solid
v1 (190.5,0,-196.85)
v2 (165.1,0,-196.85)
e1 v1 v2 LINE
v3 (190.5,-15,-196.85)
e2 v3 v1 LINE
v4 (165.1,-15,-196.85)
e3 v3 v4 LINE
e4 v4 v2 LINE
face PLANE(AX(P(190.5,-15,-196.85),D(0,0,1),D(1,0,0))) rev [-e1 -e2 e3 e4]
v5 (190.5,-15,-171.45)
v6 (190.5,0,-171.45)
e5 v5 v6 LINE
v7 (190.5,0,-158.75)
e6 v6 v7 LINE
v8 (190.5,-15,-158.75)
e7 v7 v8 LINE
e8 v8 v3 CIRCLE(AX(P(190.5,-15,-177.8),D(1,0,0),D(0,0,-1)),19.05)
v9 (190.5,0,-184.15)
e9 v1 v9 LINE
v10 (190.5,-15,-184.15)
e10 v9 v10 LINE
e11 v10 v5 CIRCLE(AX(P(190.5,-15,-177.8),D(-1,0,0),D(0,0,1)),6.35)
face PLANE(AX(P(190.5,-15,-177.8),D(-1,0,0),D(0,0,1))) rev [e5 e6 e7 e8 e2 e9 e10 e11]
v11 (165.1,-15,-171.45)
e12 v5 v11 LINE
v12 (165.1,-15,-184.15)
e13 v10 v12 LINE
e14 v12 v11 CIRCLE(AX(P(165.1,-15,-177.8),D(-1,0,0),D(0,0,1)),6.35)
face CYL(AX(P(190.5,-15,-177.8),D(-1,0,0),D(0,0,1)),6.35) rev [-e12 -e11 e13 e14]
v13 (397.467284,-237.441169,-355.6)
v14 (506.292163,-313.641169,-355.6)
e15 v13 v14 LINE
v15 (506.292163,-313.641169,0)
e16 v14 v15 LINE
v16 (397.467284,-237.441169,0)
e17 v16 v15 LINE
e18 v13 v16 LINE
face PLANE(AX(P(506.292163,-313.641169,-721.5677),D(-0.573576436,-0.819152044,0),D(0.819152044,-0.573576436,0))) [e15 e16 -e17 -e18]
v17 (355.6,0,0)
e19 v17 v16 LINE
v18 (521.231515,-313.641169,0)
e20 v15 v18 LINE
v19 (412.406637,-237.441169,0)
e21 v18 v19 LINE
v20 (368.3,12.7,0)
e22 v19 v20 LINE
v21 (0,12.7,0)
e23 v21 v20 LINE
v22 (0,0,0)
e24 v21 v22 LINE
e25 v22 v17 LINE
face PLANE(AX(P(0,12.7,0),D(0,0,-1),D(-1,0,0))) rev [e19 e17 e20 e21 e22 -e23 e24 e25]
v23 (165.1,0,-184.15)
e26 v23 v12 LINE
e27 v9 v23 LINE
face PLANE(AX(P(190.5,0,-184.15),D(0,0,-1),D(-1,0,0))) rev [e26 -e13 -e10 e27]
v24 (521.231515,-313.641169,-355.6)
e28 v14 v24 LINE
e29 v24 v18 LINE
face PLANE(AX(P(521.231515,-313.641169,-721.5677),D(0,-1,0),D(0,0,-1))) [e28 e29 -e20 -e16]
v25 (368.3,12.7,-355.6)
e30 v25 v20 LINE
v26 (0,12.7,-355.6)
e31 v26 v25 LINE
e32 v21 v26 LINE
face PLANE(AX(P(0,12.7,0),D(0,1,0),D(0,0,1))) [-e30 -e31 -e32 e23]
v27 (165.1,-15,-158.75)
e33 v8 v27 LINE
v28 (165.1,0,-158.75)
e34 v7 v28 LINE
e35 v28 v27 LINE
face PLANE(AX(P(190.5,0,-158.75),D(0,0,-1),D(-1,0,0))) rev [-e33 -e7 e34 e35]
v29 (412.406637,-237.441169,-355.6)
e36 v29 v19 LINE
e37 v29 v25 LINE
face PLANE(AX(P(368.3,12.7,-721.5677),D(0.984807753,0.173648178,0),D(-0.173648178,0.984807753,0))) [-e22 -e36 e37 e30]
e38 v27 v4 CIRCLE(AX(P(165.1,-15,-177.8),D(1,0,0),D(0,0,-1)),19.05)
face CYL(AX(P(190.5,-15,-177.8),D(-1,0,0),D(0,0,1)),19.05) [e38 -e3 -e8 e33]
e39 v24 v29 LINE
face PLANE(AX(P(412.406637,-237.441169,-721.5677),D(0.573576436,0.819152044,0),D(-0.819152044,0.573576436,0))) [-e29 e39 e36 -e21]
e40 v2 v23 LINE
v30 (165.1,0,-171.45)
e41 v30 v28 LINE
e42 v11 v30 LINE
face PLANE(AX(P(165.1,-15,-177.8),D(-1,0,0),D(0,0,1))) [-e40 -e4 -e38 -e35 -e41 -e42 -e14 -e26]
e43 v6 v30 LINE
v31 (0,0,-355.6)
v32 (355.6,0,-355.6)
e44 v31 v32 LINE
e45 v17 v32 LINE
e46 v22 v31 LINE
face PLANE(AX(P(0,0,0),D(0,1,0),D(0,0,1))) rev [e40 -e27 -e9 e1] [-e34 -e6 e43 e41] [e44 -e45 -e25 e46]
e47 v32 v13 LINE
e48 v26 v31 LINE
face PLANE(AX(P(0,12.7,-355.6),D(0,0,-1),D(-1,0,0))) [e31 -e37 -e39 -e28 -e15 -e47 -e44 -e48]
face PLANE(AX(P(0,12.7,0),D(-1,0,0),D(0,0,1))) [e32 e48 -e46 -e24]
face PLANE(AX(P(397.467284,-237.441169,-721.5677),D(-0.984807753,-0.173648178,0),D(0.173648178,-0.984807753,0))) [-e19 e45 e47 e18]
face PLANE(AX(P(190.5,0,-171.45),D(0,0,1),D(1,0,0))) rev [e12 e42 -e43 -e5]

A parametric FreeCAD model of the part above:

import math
import FreeCAD as App
import Part
import Sketcher
Q = App.Units.Quantity

doc = App.newDocument("Part")
body = doc.addObject("PartDesign::Body", "Body")

sketch1 = body.newObject("Sketcher::SketchObject", "Sketch")
sketch1.AttachmentSupport = (doc.getObject("XZ_Plane"), [""])
sketch1.MapMode = "FlatFace"
sketch1.addGeometry([
    Part.LineSegment(App.Vector(0, -356, 0), App.Vector(0, 0, 0)),
    Part.LineSegment(App.Vector(0, 0, 0), App.Vector(356, 0, 0)),
    Part.LineSegment(App.Vector(356, 0, 0), App.Vector(356, -356, 0)),
    Part.LineSegment(App.Vector(356, -356, 0), App.Vector(0, -356, 0)),
], False)
sketch1.addConstraint([
    Sketcher.Constraint("Coincident", 0, 2, 1, 1),
    Sketcher.Constraint("Coincident", 1, 2, 2, 1),
    Sketcher.Constraint("Coincident", 2, 2, 3, 1),
    Sketcher.Constraint("Coincident", 3, 2, 0, 1),
    Sketcher.Constraint("Vertical", 0),
    Sketcher.Constraint("Horizontal", 1),
    Sketcher.Constraint("Vertical", 2),
    Sketcher.Constraint("Horizontal", 3),
    Sketcher.Constraint("Coincident", 0, 2, -1, 1),
    Sketcher.Constraint("Equal", 3, 0),
    Sketcher.Constraint("DistanceX", 1, 1, 1, 2, Q("14 in")),
])
pad1 = body.newObject("PartDesign::Pad", "Pad")
pad1.Profile = sketch1
pad1.Length = Q("0.5 in")
pad1.Reversed = True

sketch2 = body.newObject("Sketcher::SketchObject", "Sketch001")
sketch2.AttachmentSupport = (doc.getObject("YZ_Plane"), [""])
sketch2.MapMode = "FlatFace"
sketch2.AttachmentOffset = App.Placement(App.Vector(0, 0, 7 * 25.4), App.Rotation())
sketch2.addGeometry([
    Part.LineSegment(App.Vector(0, -159, 0), App.Vector(-15, -159, 0)),
    Part.ArcOfCircle(Part.Circle(App.Vector(-15, -178, 0), App.Vector(0, 0, 1), 19), math.radians(90), math.radians(270)),
    Part.LineSegment(App.Vector(-15, -197, 0), App.Vector(0, -197, 0)),
    Part.LineSegment(App.Vector(0, -197, 0), App.Vector(0, -184, 0)),
    Part.LineSegment(App.Vector(0, -184, 0), App.Vector(-15, -184, 0)),
    Part.ArcOfCircle(Part.Circle(App.Vector(-15, -178, 0), App.Vector(0, 0, 1), 6), math.radians(90), math.radians(270)),
    Part.LineSegment(App.Vector(-15, -171, 0), App.Vector(0, -171, 0)),
    Part.LineSegment(App.Vector(0, -171, 0), App.Vector(0, -159, 0)),
], False)
sketch2.addConstraint([
    Sketcher.Constraint("Tangent", 0, 2, 1, 1),
    Sketcher.Constraint("Tangent", 1, 2, 2, 1),
    Sketcher.Constraint("Coincident", 2, 2, 3, 1),
    Sketcher.Constraint("Coincident", 3, 2, 4, 1),
    Sketcher.Constraint("Tangent", 4, 2, 5, 2),
    Sketcher.Constraint("Tangent", 5, 1, 6, 1),
    Sketcher.Constraint("Coincident", 6, 2, 7, 1),
    Sketcher.Constraint("Coincident", 7, 2, 0, 1),
    Sketcher.Constraint("Horizontal", 0),
    Sketcher.Constraint("Horizontal", 2),
    Sketcher.Constraint("Vertical", 3),
    Sketcher.Constraint("Horizontal", 4),
    Sketcher.Constraint("Horizontal", 6),
    Sketcher.Constraint("Vertical", 7),
    Sketcher.Constraint("Coincident", 5, 3, 1, 3),
    Sketcher.Constraint("PointOnObject", 2, 2, -2),
    Sketcher.Constraint("PointOnObject", 6, 2, -2),
    Sketcher.Constraint("Radius", 1, Q("0.75 in")),
    Sketcher.Constraint("Radius", 5, Q("0.25 in")),
    Sketcher.Constraint("DistanceY", 1, 3, -1, 1, Q("7 in")),
    Sketcher.Constraint("DistanceX", 0, 2, 0, 1, Q("15 mm")),
])
pad2 = body.newObject("PartDesign::Pad", "Pad001")
pad2.Profile = sketch2
pad2.Length = Q("1 in")
pad2.Midplane = True

sketch3 = body.newObject("Sketcher::SketchObject", "Sketch002")
sketch3.AttachmentSupport = (doc.getObject("XY_Plane"), [""])
sketch3.MapMode = "FlatFace"
sketch3.addGeometry([
    Part.LineSegment(App.Vector(412, -237, 0), App.Vector(368, 13, 0)),
    Part.LineSegment(App.Vector(368, 13, 0), App.Vector(356, 13, 0)),
    Part.LineSegment(App.Vector(356, 13, 0), App.Vector(356, 0, 0)),
    Part.LineSegment(App.Vector(356, 0, 0), App.Vector(397, -237, 0)),
    Part.LineSegment(App.Vector(397, -237, 0), App.Vector(506, -314, 0)),
    Part.LineSegment(App.Vector(506, -314, 0), App.Vector(521, -314, 0)),
    Part.LineSegment(App.Vector(521, -314, 0), App.Vector(412, -237, 0)),
], False)
sketch3.addConstraint([
    Sketcher.Constraint("Coincident", 0, 2, 1, 1),
    Sketcher.Constraint("Coincident", 1, 2, 2, 1),
    Sketcher.Constraint("Coincident", 2, 2, 3, 1),
    Sketcher.Constraint("Coincident", 3, 2, 4, 1),
    Sketcher.Constraint("Coincident", 4, 2, 5, 1),
    Sketcher.Constraint("Coincident", 5, 2, 6, 1),
    Sketcher.Constraint("Coincident", 6, 2, 0, 1),
    Sketcher.Constraint("Horizontal", 1),
    Sketcher.Constraint("Vertical", 2),
    Sketcher.Constraint("Horizontal", 5),
    Sketcher.Constraint("PointOnObject", 2, 2, -1),
    Sketcher.Constraint("Parallel", 0, 3),
    Sketcher.Constraint("Parallel", 4, 6),
    Sketcher.Constraint("Horizontal", 3, 2, 6, 2),
    Sketcher.Constraint("Equal", 1, 2),
    Sketcher.Constraint("Distance", 0, Q("10 in")),
    Sketcher.Constraint("DistanceX", 1, 2, 1, 1, Q("0.5 in")),
    Sketcher.Constraint("DistanceX", -1, 1, 1, 2, Q("14 in")),
    Sketcher.Constraint("Angle", 0, Q("100 deg")),
    Sketcher.Constraint("Angle", 4, Q("-35 deg")),
    Sketcher.Constraint("DistanceY", 4, 2, 3, 2, Q("3 in")),
])
pad3 = body.newObject("PartDesign::Pad", "Pad002")
pad3.Profile = sketch3
pad3.Length = Q("14 in")
pad3.Reversed = True

doc.recompute()
